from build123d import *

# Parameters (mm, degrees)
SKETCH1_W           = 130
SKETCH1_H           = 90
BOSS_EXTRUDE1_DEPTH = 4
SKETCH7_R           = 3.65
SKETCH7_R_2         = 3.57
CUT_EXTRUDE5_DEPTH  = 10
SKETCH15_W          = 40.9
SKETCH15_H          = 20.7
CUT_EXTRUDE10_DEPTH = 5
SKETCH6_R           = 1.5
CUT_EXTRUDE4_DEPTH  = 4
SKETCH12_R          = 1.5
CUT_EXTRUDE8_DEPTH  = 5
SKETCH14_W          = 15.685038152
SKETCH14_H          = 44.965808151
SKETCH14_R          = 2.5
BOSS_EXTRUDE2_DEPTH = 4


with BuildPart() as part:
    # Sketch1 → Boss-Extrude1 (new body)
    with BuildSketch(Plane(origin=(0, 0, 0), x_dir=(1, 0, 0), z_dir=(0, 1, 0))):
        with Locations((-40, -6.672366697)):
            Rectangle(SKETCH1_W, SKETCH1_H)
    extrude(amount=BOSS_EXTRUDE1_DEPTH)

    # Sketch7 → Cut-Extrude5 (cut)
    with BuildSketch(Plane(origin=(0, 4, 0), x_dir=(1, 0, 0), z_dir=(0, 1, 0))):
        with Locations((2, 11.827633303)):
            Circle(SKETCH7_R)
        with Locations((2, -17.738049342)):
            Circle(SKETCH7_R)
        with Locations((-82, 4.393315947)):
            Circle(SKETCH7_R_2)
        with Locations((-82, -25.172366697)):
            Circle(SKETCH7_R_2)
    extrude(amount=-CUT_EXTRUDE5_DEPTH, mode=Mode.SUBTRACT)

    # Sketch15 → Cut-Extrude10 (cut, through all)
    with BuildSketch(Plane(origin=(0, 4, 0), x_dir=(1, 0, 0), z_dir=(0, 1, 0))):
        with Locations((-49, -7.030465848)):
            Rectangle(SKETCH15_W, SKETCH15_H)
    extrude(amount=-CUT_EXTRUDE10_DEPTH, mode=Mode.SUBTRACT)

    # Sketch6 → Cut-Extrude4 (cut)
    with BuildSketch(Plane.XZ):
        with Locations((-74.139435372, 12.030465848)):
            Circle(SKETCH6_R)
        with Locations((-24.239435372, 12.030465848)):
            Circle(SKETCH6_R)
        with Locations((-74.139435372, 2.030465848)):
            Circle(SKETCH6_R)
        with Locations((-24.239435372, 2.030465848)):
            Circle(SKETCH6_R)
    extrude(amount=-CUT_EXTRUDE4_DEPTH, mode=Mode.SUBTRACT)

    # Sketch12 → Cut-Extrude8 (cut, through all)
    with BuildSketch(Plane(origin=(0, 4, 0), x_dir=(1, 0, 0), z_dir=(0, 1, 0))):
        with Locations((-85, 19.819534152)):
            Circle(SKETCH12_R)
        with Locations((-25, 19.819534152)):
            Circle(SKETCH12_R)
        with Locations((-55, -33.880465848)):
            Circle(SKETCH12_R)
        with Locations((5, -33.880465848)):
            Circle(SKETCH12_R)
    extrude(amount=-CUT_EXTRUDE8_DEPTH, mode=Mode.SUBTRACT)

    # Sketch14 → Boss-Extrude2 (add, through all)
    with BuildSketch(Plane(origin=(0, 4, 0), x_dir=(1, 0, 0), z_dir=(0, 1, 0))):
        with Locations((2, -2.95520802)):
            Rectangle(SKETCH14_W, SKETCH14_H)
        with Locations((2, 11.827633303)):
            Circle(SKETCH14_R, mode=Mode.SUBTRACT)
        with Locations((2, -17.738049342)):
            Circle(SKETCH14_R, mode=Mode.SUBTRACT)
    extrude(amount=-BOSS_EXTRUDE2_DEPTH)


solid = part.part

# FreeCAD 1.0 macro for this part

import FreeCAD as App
import Part
import Sketcher
Q = App.Units.Quantity

doc = App.newDocument("Part")
params = doc.addObject("Spreadsheet::Sheet", "Params")
for row, (alias, value) in enumerate([
    ("sketch1_width", "130 mm"),
    ("sketch1_height", "90 mm"),
    ("pad1_length", "4 mm"),
    ("sketch2_diameter", "7.3 mm"),
    ("sketch2_diameter2", "7.14 mm"),
    ("pocket1_length", "10 mm"),
    ("sketch3_width", "40.9 mm"),
    ("sketch3_height", "20.7 mm"),
    ("sketch4_diameter", "3 mm"),
    ("pocket3_length", "4 mm"),
    ("sketch5_diameter", "3 mm"),
    ("sketch6_diameter", "5 mm"),
], start=1):
    params.set(f"A{row}", alias)
    params.set(f"B{row}", "=" + value)
    params.setAlias(f"B{row}", alias)

body = doc.addObject("PartDesign::Body", "Body")

# Sketch on XZ plane
sketch1 = body.newObject("Sketcher::SketchObject", "Sketch")
sketch1.AttachmentSupport = (doc.getObject("XZ_Plane"), [""])
sketch1.MapMode = "FlatFace"
sketch1.addGeometry([
    Part.LineSegment(App.Vector(-105, -38.327633, 0), App.Vector(-105, 51.672367, 0)),
    Part.LineSegment(App.Vector(-105, 51.672367, 0), App.Vector(25, 51.672367, 0)),
    Part.LineSegment(App.Vector(25, 51.672367, 0), App.Vector(25, -38.327633, 0)),
    Part.LineSegment(App.Vector(25, -38.327633, 0), App.Vector(-105, -38.327633, 0)),
], False)
sketch1.addConstraint([
    Sketcher.Constraint("Coincident", 0, 2, 1, 1),
    Sketcher.Constraint("Coincident", 1, 2, 2, 1),
    Sketcher.Constraint("Coincident", 2, 2, 3, 1),
    Sketcher.Constraint("Coincident", 3, 2, 0, 1),
    Sketcher.Constraint("Vertical", 0),
    Sketcher.Constraint("Horizontal", 1),
    Sketcher.Constraint("Vertical", 2),
    Sketcher.Constraint("Horizontal", 3),
    Sketcher.Constraint("DistanceX", 1, 1, 1, 2, Q("130 mm")),
    Sketcher.Constraint("DistanceY", 0, 1, 0, 2, Q("90 mm")),
    Sketcher.Constraint("DistanceX", 0, 2, -1, 1, Q("105 mm")),
    Sketcher.Constraint("DistanceY", -1, 1, 0, 2, Q("51.672367 mm")),
])
sketch1.setExpression("Constraints[8]", "Params.sketch1_width")
sketch1.setExpression("Constraints[9]", "Params.sketch1_height")
pad1 = body.newObject("PartDesign::Pad", "Pad")
pad1.Profile = sketch1
pad1.setExpression("Length", "Params.pad1_length")
pad1.Reversed = True

# Sketch on XZ plane
sketch2 = body.newObject("Sketcher::SketchObject", "Sketch001")
sketch2.AttachmentSupport = (doc.getObject("XZ_Plane"), [""])
sketch2.MapMode = "FlatFace"
sketch2.AttachmentOffset = App.Placement(App.Vector(0, 0, -4), App.Rotation())
sketch2.addGeometry([
    Part.Circle(App.Vector(2, -11.827633, 0), App.Vector(0, 0, 1), 3.65),
    Part.Circle(App.Vector(2, 17.738049, 0), App.Vector(0, 0, 1), 3.65),
    Part.Circle(App.Vector(-82, -4.393316, 0), App.Vector(0, 0, 1), 3.57),
    Part.Circle(App.Vector(-82, 25.172367, 0), App.Vector(0, 0, 1), 3.57),
], False)
sketch2.addConstraint([
    Sketcher.Constraint("Equal", 0, 1),
    Sketcher.Constraint("Equal", 2, 3),
    Sketcher.Constraint("Vertical", 0, 3, 1, 3),
    Sketcher.Constraint("Vertical", 2, 3, 3, 3),
    Sketcher.Constraint("Diameter", 0, Q("7.3 mm")),
    Sketcher.Constraint("Diameter", 2, Q("7.14 mm")),
    Sketcher.Constraint("DistanceX", -1, 1, 0, 3, Q("2 mm")),
    Sketcher.Constraint("DistanceX", 2, 3, -1, 1, Q("82 mm")),
    Sketcher.Constraint("DistanceY", 0, 3, 3, 3, Q("37 mm")),
    Sketcher.Constraint("DistanceY", -1, 1, 1, 3, Q("17.738049 mm")),
    Sketcher.Constraint("DistanceY", 0, 3, -1, 1, Q("11.827633 mm")),
    Sketcher.Constraint("DistanceY", 2, 3, -1, 1, Q("4.393316 mm")),
])
sketch2.setExpression("Constraints[4]", "Params.sketch2_diameter")
sketch2.setExpression("Constraints[5]", "Params.sketch2_diameter2")
pocket1 = body.newObject("PartDesign::Pocket", "Pocket")
pocket1.Profile = sketch2
pocket1.setExpression("Length", "Params.pocket1_length")
pocket1.Reversed = True

# Sketch on XZ plane
sketch3 = body.newObject("Sketcher::SketchObject", "Sketch002")
sketch3.AttachmentSupport = (doc.getObject("XZ_Plane"), [""])
sketch3.MapMode = "FlatFace"
sketch3.AttachmentOffset = App.Placement(App.Vector(0, 0, -4), App.Rotation())
sketch3.addGeometry([
    Part.LineSegment(App.Vector(-69.45, -3.319534, 0), App.Vector(-69.45, 17.380466, 0)),
    Part.LineSegment(App.Vector(-69.45, 17.380466, 0), App.Vector(-28.55, 17.380466, 0)),
    Part.LineSegment(App.Vector(-28.55, 17.380466, 0), App.Vector(-28.55, -3.319534, 0)),
    Part.LineSegment(App.Vector(-28.55, -3.319534, 0), App.Vector(-69.45, -3.319534, 0)),
], False)
sketch3.addConstraint([
    Sketcher.Constraint("Coincident", 0, 2, 1, 1),
    Sketcher.Constraint("Coincident", 1, 2, 2, 1),
    Sketcher.Constraint("Coincident", 2, 2, 3, 1),
    Sketcher.Constraint("Coincident", 3, 2, 0, 1),
    Sketcher.Constraint("Vertical", 0),
    Sketcher.Constraint("Horizontal", 1),
    Sketcher.Constraint("Vertical", 2),
    Sketcher.Constraint("Horizontal", 3),
    Sketcher.Constraint("DistanceX", 1, 1, 1, 2, Q("40.9 mm")),
    Sketcher.Constraint("DistanceY", 0, 1, 0, 2, Q("20.7 mm")),
    Sketcher.Constraint("DistanceX", 0, 2, -1, 1, Q("69.45 mm")),
    Sketcher.Constraint("DistanceY", -1, 1, 0, 2, Q("17.380466 mm")),
])
sketch3.setExpression("Constraints[8]", "Params.sketch3_width")
sketch3.setExpression("Constraints[9]", "Params.sketch3_height")
pocket2 = body.newObject("PartDesign::Pocket", "Pocket001")
pocket2.Profile = sketch3
pocket2.Type = "ThroughAll"
pocket2.Reversed = True

# Sketch on XZ plane
sketch4 = body.newObject("Sketcher::SketchObject", "Sketch003")
sketch4.AttachmentSupport = (doc.getObject("XZ_Plane"), [""])
sketch4.MapMode = "FlatFace"
sketch4.addGeometry([
    Part.Circle(App.Vector(-74.139435, 12.030466, 0), App.Vector(0, 0, 1), 1.5),
    Part.Circle(App.Vector(-24.239435, 12.030466, 0), App.Vector(0, 0, 1), 1.5),
    Part.Circle(App.Vector(-74.139435, 2.030466, 0), App.Vector(0, 0, 1), 1.5),
    Part.Circle(App.Vector(-24.239435, 2.030466, 0), App.Vector(0, 0, 1), 1.5),
], False)
sketch4.addConstraint([
    Sketcher.Constraint("Equal", 0, 1),
    Sketcher.Constraint("Equal", 1, 2),
    Sketcher.Constraint("Equal", 2, 3),
    Sketcher.Constraint("Horizontal", 0, 3, 1, 3),
    Sketcher.Constraint("Horizontal", 2, 3, 3, 3),
    Sketcher.Constraint("Vertical", 0, 3, 2, 3),
    Sketcher.Constraint("Vertical", 1, 3, 3, 3),
    Sketcher.Constraint("Diameter", 0, Q("3 mm")),
    Sketcher.Constraint("DistanceY", 2, 3, 0, 3, Q("10 mm")),
    Sketcher.Constraint("DistanceX", 0, 3, 1, 3, Q("49.9 mm")),
    Sketcher.Constraint("DistanceX", 0, 3, -1, 1, Q("74.139435 mm")),
    Sketcher.Constraint("DistanceY", -1, 1, 0, 3, Q("12.030466 mm")),
])
sketch4.setExpression("Constraints[7]", "Params.sketch4_diameter")
pocket3 = body.newObject("PartDesign::Pocket", "Pocket002")
pocket3.Profile = sketch4
pocket3.setExpression("Length", "Params.pocket3_length")

# Sketch on XZ plane
sketch5 = body.newObject("Sketcher::SketchObject", "Sketch004")
sketch5.AttachmentSupport = (doc.getObject("XZ_Plane"), [""])
sketch5.MapMode = "FlatFace"
sketch5.AttachmentOffset = App.Placement(App.Vector(0, 0, -4), App.Rotation())
sketch5.addGeometry([
    Part.Circle(App.Vector(-85, -19.819534, 0), App.Vector(0, 0, 1), 1.5),
    Part.Circle(App.Vector(-25, -19.819534, 0), App.Vector(0, 0, 1), 1.5),
    Part.Circle(App.Vector(-55, 33.880466, 0), App.Vector(0, 0, 1), 1.5),
    Part.Circle(App.Vector(5, 33.880466, 0), App.Vector(0, 0, 1), 1.5),
], False)
sketch5.addConstraint([
    Sketcher.Constraint("Equal", 0, 1),
    Sketcher.Constraint("Equal", 1, 2),
    Sketcher.Constraint("Equal", 2, 3),
    Sketcher.Constraint("Horizontal", 0, 3, 1, 3),
    Sketcher.Constraint("Horizontal", 2, 3, 3, 3),
    Sketcher.Constraint("Diameter", 0, Q("3 mm")),
    Sketcher.Constraint("DistanceX", 0, 3, -1, 1, Q("85 mm")),
    Sketcher.Constraint("DistanceX", 1, 3, -1, 1, Q("25 mm")),
    Sketcher.Constraint("DistanceX", 2, 3, -1, 1, Q("55 mm")),
    Sketcher.Constraint("DistanceX", -1, 1, 3, 3, Q("5 mm")),
    Sketcher.Constraint("DistanceY", 0, 3, 2, 3, Q("53.7 mm")),
    Sketcher.Constraint("DistanceY", 0, 3, -1, 1, Q("19.819534 mm")),
])
sketch5.setExpression("Constraints[5]", "Params.sketch5_diameter")
pocket4 = body.newObject("PartDesign::Pocket", "Pocket003")
pocket4.Profile = sketch5
pocket4.Type = "ThroughAll"
pocket4.Reversed = True

# Sketch on XZ plane
sketch6 = body.newObject("Sketcher::SketchObject", "Sketch005")
sketch6.AttachmentSupport = (doc.getObject("XZ_Plane"), [""])
sketch6.MapMode = "FlatFace"
sketch6.AttachmentOffset = App.Placement(App.Vector(0, 0, -4), App.Rotation())
sketch6.addGeometry([
    Part.LineSegment(App.Vector(-5.842519, -19.527696, 0), App.Vector(-5.842519, 25.438112, 0)),  # 0
    Part.LineSegment(App.Vector(-5.842519, 25.438112, 0), App.Vector(9.842519, 25.438112, 0)),  # 1
    Part.LineSegment(App.Vector(9.842519, 25.438112, 0), App.Vector(9.842519, -19.527696, 0)),  # 2
    Part.LineSegment(App.Vector(9.842519, -19.527696, 0), App.Vector(-5.842519, -19.527696, 0)),  # 3
    Part.Circle(App.Vector(2, 17.738049, 0), App.Vector(0, 0, 1), 2.5),  # 4
    Part.Circle(App.Vector(2, -11.827633, 0), App.Vector(0, 0, 1), 2.5),  # 5
], False)
sketch6.addConstraint([
    Sketcher.Constraint("Coincident", 0, 2, 1, 1),
    Sketcher.Constraint("Coincident", 1, 2, 2, 1),
    Sketcher.Constraint("Coincident", 2, 2, 3, 1),
    Sketcher.Constraint("Coincident", 3, 2, 0, 1),
    Sketcher.Constraint("Vertical", 0),
    Sketcher.Constraint("Horizontal", 1),
    Sketcher.Constraint("Vertical", 2),
    Sketcher.Constraint("Horizontal", 3),
    Sketcher.Constraint("Equal", 4, 5),
    Sketcher.Constraint("Vertical", 4, 3, 5, 3),
    Sketcher.Constraint("Diameter", 4, Q("5 mm")),
    Sketcher.Constraint("DistanceX", -1, 1, 4, 3, Q("2 mm")),
    Sketcher.Constraint("DistanceX", 1, 1, 1, 2, Q("15.685038 mm")),
    Sketcher.Constraint("DistanceY", 0, 1, 0, 2, Q("44.965808 mm")),
    Sketcher.Constraint("DistanceY", -1, 1, 4, 3, Q("17.738049 mm")),
    Sketcher.Constraint("DistanceX", 0, 2, -1, 1, Q("5.842519 mm")),
    Sketcher.Constraint("DistanceY", 5, 3, -1, 1, Q("11.827633 mm")),
    Sketcher.Constraint("DistanceY", -1, 1, 0, 2, Q("25.438112 mm")),
])
sketch6.setExpression("Constraints[10]", "Params.sketch6_diameter")
pad2 = body.newObject("PartDesign::Pad", "Pad001")
pad2.Profile = sketch6
pad2.Type = "UpToLast"

doc.recompute()
